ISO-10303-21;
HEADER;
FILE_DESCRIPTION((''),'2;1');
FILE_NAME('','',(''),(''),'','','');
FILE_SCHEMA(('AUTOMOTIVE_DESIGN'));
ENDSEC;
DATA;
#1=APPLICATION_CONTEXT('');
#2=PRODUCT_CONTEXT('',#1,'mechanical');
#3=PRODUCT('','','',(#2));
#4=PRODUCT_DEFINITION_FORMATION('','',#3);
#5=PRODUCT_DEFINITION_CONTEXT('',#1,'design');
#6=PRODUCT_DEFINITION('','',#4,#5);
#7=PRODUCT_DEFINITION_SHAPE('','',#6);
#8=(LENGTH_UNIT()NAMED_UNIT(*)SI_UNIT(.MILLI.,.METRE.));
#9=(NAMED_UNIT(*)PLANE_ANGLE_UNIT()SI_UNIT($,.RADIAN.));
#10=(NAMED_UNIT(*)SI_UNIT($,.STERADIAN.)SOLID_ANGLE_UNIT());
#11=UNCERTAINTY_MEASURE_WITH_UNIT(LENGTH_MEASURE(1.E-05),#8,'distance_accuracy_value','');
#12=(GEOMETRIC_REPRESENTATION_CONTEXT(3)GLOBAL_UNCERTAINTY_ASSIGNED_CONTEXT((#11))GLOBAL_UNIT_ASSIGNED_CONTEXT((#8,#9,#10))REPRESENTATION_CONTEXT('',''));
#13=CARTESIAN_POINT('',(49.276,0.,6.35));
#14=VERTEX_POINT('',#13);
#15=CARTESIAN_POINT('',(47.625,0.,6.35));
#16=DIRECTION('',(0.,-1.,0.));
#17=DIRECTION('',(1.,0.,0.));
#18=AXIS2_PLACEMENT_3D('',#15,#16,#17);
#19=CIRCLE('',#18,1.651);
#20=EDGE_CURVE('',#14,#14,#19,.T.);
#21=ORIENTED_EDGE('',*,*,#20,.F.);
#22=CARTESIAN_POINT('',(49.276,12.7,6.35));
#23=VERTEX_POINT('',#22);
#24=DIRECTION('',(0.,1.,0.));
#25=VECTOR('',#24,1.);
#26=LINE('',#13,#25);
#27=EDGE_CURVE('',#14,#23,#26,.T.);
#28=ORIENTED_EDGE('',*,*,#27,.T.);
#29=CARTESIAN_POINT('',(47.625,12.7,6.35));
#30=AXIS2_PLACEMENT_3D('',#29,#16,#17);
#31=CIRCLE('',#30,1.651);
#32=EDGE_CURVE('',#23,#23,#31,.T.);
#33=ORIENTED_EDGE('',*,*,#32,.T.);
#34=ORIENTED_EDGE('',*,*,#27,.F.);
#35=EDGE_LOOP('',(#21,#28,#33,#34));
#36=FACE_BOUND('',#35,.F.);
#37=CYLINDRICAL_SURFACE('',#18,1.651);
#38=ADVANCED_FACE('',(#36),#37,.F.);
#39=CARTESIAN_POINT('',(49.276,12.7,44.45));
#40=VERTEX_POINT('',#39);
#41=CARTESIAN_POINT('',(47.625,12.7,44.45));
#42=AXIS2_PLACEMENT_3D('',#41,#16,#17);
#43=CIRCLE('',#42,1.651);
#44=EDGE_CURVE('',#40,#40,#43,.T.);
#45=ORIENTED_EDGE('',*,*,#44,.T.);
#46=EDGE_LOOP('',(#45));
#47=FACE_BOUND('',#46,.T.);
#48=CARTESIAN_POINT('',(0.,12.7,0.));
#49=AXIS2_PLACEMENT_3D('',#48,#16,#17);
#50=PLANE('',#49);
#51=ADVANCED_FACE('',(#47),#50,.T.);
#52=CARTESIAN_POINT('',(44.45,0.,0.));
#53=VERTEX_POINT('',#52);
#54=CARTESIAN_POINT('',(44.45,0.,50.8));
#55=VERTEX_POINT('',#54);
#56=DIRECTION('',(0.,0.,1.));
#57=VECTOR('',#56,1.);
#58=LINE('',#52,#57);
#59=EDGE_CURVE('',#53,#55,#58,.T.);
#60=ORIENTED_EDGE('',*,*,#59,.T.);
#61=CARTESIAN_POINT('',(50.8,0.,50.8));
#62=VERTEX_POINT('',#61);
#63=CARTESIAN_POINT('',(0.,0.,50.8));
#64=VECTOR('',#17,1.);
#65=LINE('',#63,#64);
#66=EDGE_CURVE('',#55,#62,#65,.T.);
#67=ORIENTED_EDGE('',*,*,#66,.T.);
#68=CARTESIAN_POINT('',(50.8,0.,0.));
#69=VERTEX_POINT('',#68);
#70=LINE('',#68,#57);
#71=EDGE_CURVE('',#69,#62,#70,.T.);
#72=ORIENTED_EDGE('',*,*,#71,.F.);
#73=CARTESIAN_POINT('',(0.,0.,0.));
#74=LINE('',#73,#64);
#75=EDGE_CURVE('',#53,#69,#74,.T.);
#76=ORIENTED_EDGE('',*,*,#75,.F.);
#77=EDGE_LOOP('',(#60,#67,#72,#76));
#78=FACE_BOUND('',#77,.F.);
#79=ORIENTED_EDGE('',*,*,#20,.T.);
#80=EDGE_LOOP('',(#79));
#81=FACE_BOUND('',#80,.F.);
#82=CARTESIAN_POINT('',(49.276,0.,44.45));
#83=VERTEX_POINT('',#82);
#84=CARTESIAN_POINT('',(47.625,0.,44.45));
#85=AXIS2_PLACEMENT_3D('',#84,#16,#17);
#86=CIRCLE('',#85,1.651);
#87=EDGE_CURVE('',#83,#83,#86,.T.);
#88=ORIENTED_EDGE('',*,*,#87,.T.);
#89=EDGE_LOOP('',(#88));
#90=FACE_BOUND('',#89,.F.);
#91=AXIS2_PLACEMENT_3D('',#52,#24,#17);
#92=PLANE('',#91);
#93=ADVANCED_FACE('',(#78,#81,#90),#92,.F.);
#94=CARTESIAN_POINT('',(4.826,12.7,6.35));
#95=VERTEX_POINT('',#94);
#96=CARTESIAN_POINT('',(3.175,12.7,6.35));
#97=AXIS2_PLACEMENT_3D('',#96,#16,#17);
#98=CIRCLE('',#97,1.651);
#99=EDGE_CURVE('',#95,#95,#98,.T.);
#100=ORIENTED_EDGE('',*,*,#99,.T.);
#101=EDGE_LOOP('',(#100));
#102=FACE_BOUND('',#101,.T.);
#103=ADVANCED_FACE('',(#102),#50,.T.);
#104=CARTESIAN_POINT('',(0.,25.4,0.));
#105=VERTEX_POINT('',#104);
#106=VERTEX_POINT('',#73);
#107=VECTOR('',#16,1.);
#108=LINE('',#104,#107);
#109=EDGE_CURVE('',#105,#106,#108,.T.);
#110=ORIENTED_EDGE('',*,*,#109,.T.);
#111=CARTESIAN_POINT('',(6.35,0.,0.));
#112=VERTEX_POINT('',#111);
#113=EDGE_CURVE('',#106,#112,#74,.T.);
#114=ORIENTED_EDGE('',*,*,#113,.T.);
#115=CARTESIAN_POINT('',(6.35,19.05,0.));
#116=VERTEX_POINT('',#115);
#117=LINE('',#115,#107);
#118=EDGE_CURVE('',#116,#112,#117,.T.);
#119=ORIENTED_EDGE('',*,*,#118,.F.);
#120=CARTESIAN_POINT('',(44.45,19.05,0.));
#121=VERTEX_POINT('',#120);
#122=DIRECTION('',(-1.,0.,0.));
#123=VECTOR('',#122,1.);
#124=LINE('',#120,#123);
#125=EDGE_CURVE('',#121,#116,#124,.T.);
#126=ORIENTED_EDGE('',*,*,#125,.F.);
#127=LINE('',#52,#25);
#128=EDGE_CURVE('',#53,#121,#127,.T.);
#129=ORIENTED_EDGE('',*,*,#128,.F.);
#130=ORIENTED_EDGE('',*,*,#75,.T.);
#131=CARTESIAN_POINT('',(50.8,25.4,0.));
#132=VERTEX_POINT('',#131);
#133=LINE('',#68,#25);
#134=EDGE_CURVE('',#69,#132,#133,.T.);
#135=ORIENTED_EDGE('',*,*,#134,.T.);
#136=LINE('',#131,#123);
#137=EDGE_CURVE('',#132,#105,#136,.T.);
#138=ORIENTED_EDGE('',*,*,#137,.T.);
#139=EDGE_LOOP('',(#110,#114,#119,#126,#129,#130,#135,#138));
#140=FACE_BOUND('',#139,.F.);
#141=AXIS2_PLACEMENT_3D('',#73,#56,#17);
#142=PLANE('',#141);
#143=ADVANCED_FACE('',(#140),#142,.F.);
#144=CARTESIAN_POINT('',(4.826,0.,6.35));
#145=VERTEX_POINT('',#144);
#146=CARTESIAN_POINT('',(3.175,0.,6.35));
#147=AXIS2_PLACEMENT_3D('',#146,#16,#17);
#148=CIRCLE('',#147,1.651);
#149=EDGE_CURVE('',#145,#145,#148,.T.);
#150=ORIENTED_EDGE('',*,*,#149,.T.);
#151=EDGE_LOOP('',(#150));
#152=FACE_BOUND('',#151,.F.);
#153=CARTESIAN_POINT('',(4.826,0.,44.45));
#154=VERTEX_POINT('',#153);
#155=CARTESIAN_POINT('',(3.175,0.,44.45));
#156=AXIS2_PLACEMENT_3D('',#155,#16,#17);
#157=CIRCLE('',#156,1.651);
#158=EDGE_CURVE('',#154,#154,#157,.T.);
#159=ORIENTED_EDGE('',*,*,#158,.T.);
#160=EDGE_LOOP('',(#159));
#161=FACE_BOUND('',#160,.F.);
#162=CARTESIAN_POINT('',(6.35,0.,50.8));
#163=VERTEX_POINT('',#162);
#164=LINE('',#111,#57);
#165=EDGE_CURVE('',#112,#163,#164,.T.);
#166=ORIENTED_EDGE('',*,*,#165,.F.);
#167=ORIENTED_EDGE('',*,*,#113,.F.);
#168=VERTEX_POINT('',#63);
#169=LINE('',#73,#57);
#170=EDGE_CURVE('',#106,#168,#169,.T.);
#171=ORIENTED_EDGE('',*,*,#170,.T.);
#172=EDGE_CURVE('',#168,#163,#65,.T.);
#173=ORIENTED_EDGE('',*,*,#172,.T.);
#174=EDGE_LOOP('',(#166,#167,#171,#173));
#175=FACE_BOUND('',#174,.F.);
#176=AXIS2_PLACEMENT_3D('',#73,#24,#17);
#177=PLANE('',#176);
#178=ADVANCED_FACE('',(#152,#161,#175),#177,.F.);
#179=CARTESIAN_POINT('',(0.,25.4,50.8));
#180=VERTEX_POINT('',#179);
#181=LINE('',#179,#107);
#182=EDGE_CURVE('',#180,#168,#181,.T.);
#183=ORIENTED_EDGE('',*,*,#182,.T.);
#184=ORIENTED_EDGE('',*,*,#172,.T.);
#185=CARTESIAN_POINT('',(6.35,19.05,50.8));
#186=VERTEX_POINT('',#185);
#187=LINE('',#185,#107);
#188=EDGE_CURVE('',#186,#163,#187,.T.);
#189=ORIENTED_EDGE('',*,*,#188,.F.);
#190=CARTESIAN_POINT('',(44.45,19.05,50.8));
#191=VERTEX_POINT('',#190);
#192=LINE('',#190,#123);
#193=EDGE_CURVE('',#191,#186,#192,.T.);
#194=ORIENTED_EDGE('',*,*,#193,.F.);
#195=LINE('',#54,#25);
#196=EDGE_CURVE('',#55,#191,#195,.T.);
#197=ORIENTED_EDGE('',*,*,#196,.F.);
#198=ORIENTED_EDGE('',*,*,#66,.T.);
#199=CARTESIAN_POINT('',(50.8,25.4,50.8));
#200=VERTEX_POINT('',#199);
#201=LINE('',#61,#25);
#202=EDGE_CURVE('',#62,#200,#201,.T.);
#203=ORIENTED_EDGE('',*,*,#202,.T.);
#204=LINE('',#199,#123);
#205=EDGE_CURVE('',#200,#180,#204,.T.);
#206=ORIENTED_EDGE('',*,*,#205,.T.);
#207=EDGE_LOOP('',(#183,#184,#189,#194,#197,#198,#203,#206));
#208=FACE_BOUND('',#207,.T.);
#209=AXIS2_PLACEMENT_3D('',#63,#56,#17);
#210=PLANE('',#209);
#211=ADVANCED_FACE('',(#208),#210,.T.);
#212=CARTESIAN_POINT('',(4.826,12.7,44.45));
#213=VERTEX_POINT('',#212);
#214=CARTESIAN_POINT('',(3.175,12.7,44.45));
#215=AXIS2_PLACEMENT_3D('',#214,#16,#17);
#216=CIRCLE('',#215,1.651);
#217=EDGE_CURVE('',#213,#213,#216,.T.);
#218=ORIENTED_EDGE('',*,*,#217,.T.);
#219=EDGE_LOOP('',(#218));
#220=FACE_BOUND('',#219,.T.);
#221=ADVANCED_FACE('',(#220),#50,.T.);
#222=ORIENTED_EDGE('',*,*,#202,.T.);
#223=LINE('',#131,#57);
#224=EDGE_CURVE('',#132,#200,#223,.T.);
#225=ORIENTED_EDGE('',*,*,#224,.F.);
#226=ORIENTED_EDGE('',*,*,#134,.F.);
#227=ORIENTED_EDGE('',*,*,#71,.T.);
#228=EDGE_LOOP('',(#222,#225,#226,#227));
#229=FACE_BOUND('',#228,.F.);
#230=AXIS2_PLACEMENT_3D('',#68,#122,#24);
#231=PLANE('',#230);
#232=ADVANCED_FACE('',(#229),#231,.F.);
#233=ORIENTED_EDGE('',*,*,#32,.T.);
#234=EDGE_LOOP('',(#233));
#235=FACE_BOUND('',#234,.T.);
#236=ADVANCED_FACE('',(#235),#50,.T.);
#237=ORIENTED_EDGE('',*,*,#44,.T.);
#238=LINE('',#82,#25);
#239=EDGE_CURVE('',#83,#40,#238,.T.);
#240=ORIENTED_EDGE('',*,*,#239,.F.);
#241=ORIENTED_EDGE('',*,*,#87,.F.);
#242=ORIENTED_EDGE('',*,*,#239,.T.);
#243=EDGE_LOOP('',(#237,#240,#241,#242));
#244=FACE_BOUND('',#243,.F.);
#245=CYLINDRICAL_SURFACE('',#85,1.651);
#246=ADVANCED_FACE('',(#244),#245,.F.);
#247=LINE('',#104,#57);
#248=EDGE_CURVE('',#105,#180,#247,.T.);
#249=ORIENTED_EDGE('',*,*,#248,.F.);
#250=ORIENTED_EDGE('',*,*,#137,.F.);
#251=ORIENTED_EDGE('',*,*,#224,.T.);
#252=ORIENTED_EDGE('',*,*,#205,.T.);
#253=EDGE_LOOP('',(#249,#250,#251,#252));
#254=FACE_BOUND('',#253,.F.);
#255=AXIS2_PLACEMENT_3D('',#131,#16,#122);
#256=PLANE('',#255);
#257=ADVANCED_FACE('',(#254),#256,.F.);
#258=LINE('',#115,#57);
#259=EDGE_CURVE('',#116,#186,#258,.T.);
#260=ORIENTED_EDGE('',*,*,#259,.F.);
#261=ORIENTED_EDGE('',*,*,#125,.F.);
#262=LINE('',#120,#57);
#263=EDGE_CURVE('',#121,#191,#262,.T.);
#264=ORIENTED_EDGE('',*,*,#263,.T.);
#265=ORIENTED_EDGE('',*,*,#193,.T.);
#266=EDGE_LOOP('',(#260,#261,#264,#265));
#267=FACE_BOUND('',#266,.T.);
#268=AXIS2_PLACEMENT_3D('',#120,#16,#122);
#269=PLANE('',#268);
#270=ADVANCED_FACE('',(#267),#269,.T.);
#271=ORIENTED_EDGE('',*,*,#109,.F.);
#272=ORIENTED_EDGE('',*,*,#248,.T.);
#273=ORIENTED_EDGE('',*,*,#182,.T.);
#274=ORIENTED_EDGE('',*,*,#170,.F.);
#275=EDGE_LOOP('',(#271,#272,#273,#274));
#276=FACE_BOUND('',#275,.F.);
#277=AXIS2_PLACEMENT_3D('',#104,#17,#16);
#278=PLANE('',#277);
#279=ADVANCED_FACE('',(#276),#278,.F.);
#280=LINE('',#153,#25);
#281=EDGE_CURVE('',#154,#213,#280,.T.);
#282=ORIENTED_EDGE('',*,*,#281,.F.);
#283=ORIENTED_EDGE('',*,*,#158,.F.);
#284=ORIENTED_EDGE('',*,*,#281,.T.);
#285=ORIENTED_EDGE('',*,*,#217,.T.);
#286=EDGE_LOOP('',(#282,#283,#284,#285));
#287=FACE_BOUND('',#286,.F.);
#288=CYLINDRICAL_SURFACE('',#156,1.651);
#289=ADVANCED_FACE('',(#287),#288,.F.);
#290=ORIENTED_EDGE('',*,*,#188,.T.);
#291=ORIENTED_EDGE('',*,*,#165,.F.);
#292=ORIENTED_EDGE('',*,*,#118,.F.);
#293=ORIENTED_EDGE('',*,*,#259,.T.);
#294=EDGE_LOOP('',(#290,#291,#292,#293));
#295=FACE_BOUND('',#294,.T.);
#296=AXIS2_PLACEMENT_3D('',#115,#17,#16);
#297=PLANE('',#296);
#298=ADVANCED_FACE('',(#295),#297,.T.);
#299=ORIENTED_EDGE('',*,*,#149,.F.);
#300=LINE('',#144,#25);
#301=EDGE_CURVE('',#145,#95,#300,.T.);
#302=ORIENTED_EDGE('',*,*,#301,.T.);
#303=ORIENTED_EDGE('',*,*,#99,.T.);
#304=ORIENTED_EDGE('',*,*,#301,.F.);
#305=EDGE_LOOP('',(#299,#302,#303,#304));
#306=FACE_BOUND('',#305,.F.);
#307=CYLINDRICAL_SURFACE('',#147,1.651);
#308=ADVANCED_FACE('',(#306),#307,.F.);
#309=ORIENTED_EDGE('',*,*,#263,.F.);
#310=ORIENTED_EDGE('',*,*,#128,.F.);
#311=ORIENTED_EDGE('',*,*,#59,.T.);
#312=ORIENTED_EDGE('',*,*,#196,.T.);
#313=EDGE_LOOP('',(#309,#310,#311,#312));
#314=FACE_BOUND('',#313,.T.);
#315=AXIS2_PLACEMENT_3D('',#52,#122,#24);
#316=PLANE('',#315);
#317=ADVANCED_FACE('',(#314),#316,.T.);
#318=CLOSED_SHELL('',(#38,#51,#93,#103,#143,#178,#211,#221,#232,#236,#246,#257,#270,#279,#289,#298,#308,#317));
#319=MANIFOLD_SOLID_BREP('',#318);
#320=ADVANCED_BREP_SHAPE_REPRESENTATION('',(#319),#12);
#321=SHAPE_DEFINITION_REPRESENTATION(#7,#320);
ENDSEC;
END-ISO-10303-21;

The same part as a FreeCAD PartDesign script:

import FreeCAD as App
import Part
import Sketcher

V = App.Vector
Q = App.Units.Quantity

doc = App.newDocument("Part")
body = doc.addObject("PartDesign::Body", "Body")

# Sketch on XY plane
sketch1 = body.newObject("Sketcher::SketchObject", "Sketch")
sketch1.AttachmentSupport = (doc.getObject("XY_Plane"), [""])
sketch1.MapMode = "FlatFace"
sketch1.addGeometry(Part.LineSegment(V(0, 25.4, 0), V(0, 0, 0)), False)
sketch1.addGeometry(Part.LineSegment(V(0, 0, 0), V(6.35, 0, 0)), False)
sketch1.addGeometry(Part.LineSegment(V(6.35, 0, 0), V(6.35, 19.05, 0)), False)
sketch1.addGeometry(Part.LineSegment(V(6.35, 19.05, 0), V(44.45, 19.05, 0)), False)
sketch1.addGeometry(Part.LineSegment(V(44.45, 19.05, 0), V(44.45, 0, 0)), False)
sketch1.addGeometry(Part.LineSegment(V(44.45, 0, 0), V(50.8, 0, 0)), False)
sketch1.addGeometry(Part.LineSegment(V(50.8, 0, 0), V(50.8, 25.4, 0)), False)
sketch1.addGeometry(Part.LineSegment(V(50.8, 25.4, 0), V(0, 25.4, 0)), False)
sketch1.addConstraint(Sketcher.Constraint("Coincident", 0, 2, 1, 1))
sketch1.addConstraint(Sketcher.Constraint("Coincident", 1, 2, 2, 1))
sketch1.addConstraint(Sketcher.Constraint("Coincident", 2, 2, 3, 1))
sketch1.addConstraint(Sketcher.Constraint("Coincident", 3, 2, 4, 1))
sketch1.addConstraint(Sketcher.Constraint("Coincident", 4, 2, 5, 1))
sketch1.addConstraint(Sketcher.Constraint("Coincident", 5, 2, 6, 1))
sketch1.addConstraint(Sketcher.Constraint("Coincident", 6, 2, 7, 1))
sketch1.addConstraint(Sketcher.Constraint("Coincident", 7, 2, 0, 1))
sketch1.addConstraint(Sketcher.Constraint("Vertical", 0))
sketch1.addConstraint(Sketcher.Constraint("Horizontal", 1))
sketch1.addConstraint(Sketcher.Constraint("Vertical", 2))
sketch1.addConstraint(Sketcher.Constraint("Horizontal", 3))
sketch1.addConstraint(Sketcher.Constraint("Vertical", 4))
sketch1.addConstraint(Sketcher.Constraint("Horizontal", 5))
sketch1.addConstraint(Sketcher.Constraint("Vertical", 6))
sketch1.addConstraint(Sketcher.Constraint("Horizontal", 7))
sketch1.addConstraint(Sketcher.Constraint("Coincident", 0, 2, -1, 1))
sketch1.addConstraint(Sketcher.Constraint("PointOnObject", 4, 2, -1))
sketch1.addConstraint(Sketcher.Constraint("Equal", 1, 5))
sketch1.addConstraint(Sketcher.Constraint("DistanceY", 0, 2, 0, 1, Q("1 in")))
sketch1.addConstraint(Sketcher.Constraint("DistanceX", 3, 1, 3, 2, Q("1.5 in")))
sketch1.addConstraint(Sketcher.Constraint("DistanceX", 1, 1, 1, 2, Q("0.25 in")))
sketch1.addConstraint(Sketcher.Constraint("DistanceY", 3, 2, 6, 2, Q("0.25 in")))
pad1 = body.newObject("PartDesign::Pad", "Pad")
pad1.Profile = sketch1
pad1.Length = Q("2 in")

# Sketch on XZ plane
sketch2 = body.newObject("Sketcher::SketchObject", "Sketch001")
sketch2.AttachmentSupport = (doc.getObject("XZ_Plane"), [""])
sketch2.MapMode = "FlatFace"
sketch2.addGeometry(Part.Circle(V(3.175, 44.45, 0), V(0, 0, 1), 1.651), False)
sketch2.addGeometry(Part.Circle(V(3.175, 6.35, 0), V(0, 0, 1), 1.651), False)
sketch2.addGeometry(Part.Circle(V(47.625, 44.45, 0), V(0, 0, 1), 1.651), False)
sketch2.addGeometry(Part.Circle(V(47.625, 6.35, 0), V(0, 0, 1), 1.651), False)
sketch2.addConstraint(Sketcher.Constraint("Equal", 0, 1))
sketch2.addConstraint(Sketcher.Constraint("Equal", 1, 2))
sketch2.addConstraint(Sketcher.Constraint("Equal", 2, 3))
sketch2.addConstraint(Sketcher.Constraint("Horizontal", 0, 3, 2, 3))
sketch2.addConstraint(Sketcher.Constraint("Horizontal", 1, 3, 3, 3))
sketch2.addConstraint(Sketcher.Constraint("Vertical", 0, 3, 1, 3))
sketch2.addConstraint(Sketcher.Constraint("Vertical", 2, 3, 3, 3))
sketch2.addConstraint(Sketcher.Constraint("Diameter", 0, Q("0.13 in")))
sketch2.addConstraint(Sketcher.Constraint("DistanceY", -1, 1, 1, 3, Q("0.25 in")))
sketch2.addConstraint(Sketcher.Constraint("DistanceX", -1, 1, 0, 3, Q("0.125 in")))
sketch2.addConstraint(Sketcher.Constraint("DistanceY", 1, 3, 0, 3, Q("1.5 in")))
sketch2.addConstraint(Sketcher.Constraint("DistanceX", 0, 3, 2, 3, Q("1.75 in")))
pocket1 = body.newObject("PartDesign::Pocket", "Pocket")
pocket1.Profile = sketch2
pocket1.Length = Q("0.5 in")

doc.recompute()
